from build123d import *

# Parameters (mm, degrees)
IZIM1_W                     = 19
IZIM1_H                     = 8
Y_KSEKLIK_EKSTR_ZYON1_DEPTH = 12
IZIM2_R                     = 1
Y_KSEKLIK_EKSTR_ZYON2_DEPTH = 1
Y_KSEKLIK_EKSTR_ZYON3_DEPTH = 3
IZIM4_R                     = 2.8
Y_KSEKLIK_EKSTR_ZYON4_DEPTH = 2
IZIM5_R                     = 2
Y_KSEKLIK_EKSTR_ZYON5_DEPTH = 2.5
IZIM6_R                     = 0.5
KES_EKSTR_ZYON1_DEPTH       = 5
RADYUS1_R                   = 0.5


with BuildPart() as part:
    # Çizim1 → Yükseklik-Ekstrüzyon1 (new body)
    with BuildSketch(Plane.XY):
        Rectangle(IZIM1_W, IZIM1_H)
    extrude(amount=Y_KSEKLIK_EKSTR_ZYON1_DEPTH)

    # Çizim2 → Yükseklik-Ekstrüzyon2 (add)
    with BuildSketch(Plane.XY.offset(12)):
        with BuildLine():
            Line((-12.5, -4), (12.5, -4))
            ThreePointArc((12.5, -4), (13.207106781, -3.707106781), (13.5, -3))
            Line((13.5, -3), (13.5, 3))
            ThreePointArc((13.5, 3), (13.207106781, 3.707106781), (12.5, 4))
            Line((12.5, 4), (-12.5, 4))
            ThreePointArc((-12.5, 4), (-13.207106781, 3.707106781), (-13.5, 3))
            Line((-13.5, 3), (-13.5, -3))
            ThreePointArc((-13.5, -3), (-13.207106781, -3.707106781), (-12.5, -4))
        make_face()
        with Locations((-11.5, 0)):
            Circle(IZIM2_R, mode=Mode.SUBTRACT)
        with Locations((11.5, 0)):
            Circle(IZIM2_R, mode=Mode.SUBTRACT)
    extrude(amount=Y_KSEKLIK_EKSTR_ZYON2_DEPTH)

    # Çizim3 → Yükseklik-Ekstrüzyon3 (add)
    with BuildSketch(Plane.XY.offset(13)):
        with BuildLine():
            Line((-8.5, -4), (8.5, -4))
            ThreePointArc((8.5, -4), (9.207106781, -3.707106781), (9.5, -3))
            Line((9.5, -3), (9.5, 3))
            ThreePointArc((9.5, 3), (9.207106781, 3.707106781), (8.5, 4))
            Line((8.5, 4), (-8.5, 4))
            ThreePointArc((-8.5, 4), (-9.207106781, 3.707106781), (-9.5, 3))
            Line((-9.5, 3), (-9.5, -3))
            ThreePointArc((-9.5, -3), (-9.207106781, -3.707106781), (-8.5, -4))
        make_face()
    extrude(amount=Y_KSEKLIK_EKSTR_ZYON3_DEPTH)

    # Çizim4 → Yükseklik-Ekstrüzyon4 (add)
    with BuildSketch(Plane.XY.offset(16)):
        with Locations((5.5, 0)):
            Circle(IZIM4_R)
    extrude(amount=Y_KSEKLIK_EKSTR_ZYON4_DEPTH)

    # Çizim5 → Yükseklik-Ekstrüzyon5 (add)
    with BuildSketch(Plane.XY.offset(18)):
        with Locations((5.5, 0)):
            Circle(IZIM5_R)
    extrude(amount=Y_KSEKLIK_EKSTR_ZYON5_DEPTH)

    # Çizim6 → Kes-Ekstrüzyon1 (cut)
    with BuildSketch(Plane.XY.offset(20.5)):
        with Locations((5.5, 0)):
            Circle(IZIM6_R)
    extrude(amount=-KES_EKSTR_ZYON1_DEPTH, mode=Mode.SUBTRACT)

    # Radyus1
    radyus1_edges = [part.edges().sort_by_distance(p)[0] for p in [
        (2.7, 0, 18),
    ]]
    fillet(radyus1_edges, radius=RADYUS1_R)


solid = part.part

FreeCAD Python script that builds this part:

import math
import FreeCAD as App
import Part
import Sketcher

V = App.Vector


def edges_at(feature, points):
    """Names of the edges that pass closest to the given points."""
    edges = feature.Shape.Edges
    near = lambda p: min(range(len(edges)), key=lambda i: edges[i].distToShape(Part.Vertex(*p))[0])
    return sorted({f"Edge{near(p) + 1}" for p in points})

doc = App.newDocument("Part")
body = doc.addObject("PartDesign::Body", "Body")

# Sketch on XY plane
sketch1 = doc.addObject("Sketcher::SketchObject", "Sketch")
body.addObject(sketch1)
sketch1.AttachmentSupport = (doc.XY_Plane, [""])
sketch1.MapMode = "FlatFace"
sketch1.addGeometry([
    Part.LineSegment(V(-10, 4, 0), V(-10, -4, 0)),
    Part.LineSegment(V(-10, -4, 0), V(10, -4, 0)),
    Part.LineSegment(V(10, -4, 0), V(10, 4, 0)),
    Part.LineSegment(V(10, 4, 0), V(-10, 4, 0)),
], False)
sketch1.addConstraint([
    Sketcher.Constraint("Coincident", 0, 2, 1, 1),
    Sketcher.Constraint("Coincident", 1, 2, 2, 1),
    Sketcher.Constraint("Coincident", 2, 2, 3, 1),
    Sketcher.Constraint("Coincident", 3, 2, 0, 1),
    Sketcher.Constraint("Vertical", 0),
    Sketcher.Constraint("Horizontal", 1),
    Sketcher.Constraint("Vertical", 2),
    Sketcher.Constraint("Horizontal", 3),
    Sketcher.Constraint("Symmetric", 0, 2, 2, 2, -1, 1),
    Sketcher.Constraint("DistanceX", 1, 1, 1, 2, 19.0),
    Sketcher.Constraint("DistanceY", 0, 2, 0, 1, 8.0),
])
pad1 = doc.addObject("PartDesign::Pad", "Pad")
body.addObject(pad1)
pad1.Profile = sketch1
pad1.Length = 12

# Sketch on XY plane
sketch2 = doc.addObject("Sketcher::SketchObject", "Sketch001")
body.addObject(sketch2)
sketch2.AttachmentSupport = (doc.XY_Plane, [""])
sketch2.MapMode = "FlatFace"
sketch2.AttachmentOffset = App.Placement(V(0, 0, 12), App.Rotation())
sketch2.addGeometry([
    Part.LineSegment(V(-12.5, -4, 0), V(12.5, -4, 0)),  # 0
    Part.ArcOfCircle(Part.Circle(V(12.5, -3, 0), V(0, 0, 1), 1), math.radians(-90), math.radians(0)),  # 1
    Part.LineSegment(V(13.5, -3, 0), V(13.5, 3, 0)),  # 2
    Part.ArcOfCircle(Part.Circle(V(12.5, 3, 0), V(0, 0, 1), 1), math.radians(0), math.radians(90)),  # 3
    Part.LineSegment(V(12.5, 4, 0), V(-12.5, 4, 0)),  # 4
    Part.ArcOfCircle(Part.Circle(V(-12.5, 3, 0), V(0, 0, 1), 1), math.radians(90), math.radians(180)),  # 5
    Part.LineSegment(V(-13.5, 3, 0), V(-13.5, -3, 0)),  # 6
    Part.ArcOfCircle(Part.Circle(V(-12.5, -3, 0), V(0, 0, 1), 1), math.radians(-180), math.radians(-90)),  # 7
    Part.Circle(V(-11.5, 0, 0), V(0, 0, 1), 1),  # 8
    Part.Circle(V(11.5, 0, 0), V(0, 0, 1), 1),  # 9
], False)
sketch2.addConstraint([
    Sketcher.Constraint("Tangent", 0, 2, 1, 1),
    Sketcher.Constraint("Tangent", 1, 2, 2, 1),
    Sketcher.Constraint("Tangent", 2, 2, 3, 1),
    Sketcher.Constraint("Tangent", 3, 2, 4, 1),
    Sketcher.Constraint("Tangent", 4, 2, 5, 1),
    Sketcher.Constraint("Tangent", 5, 2, 6, 1),
    Sketcher.Constraint("Tangent", 6, 2, 7, 1),
    Sketcher.Constraint("Tangent", 7, 2, 0, 1),
    Sketcher.Constraint("Horizontal", 0),
    Sketcher.Constraint("Vertical", 2),
    Sketcher.Constraint("Horizontal", 4),
    Sketcher.Constraint("Vertical", 6),
    Sketcher.Constraint("Equal", 1, 3),
    Sketcher.Constraint("Equal", 3, 5),
    Sketcher.Constraint("Equal", 5, 7),
    Sketcher.Constraint("Equal", 7, 8),
    Sketcher.Constraint("Equal", 8, 9),
    Sketcher.Constraint("Symmetric", 1, 3, 5, 3, -1, 1),
    Sketcher.Constraint("Symmetric", 8, 3, 9, 3, -1, 1),
    Sketcher.Constraint("PointOnObject", 8, 3, -1),
    Sketcher.Constraint("Diameter", 8, 2.0),
    Sketcher.Constraint("DistanceX", 0, 1, 0, 2, 25.0),
    Sketcher.Constraint("DistanceY", 2, 1, 2, 2, 6.0),
    Sketcher.Constraint("DistanceX", 5, 3, 8, 3, 1.0),
])
pad2 = doc.addObject("PartDesign::Pad", "Pad001")
body.addObject(pad2)
pad2.Profile = sketch2
pad2.Length = 1

# Sketch on XY plane
sketch3 = doc.addObject("Sketcher::SketchObject", "Sketch002")
body.addObject(sketch3)
sketch3.AttachmentSupport = (doc.XY_Plane, [""])
sketch3.MapMode = "FlatFace"
sketch3.AttachmentOffset = App.Placement(V(0, 0, 13), App.Rotation())
sketch3.addGeometry([
    Part.LineSegment(V(-8.5, -4, 0), V(8.5, -4, 0)),  # 0
    Part.ArcOfCircle(Part.Circle(V(8.5, -3, 0), V(0, 0, 1), 1), math.radians(-90), math.radians(0)),  # 1
    Part.LineSegment(V(9.5, -3, 0), V(9.5, 3, 0)),  # 2
    Part.ArcOfCircle(Part.Circle(V(8.5, 3, 0), V(0, 0, 1), 1), math.radians(0), math.radians(90)),  # 3
    Part.LineSegment(V(8.5, 4, 0), V(-8.5, 4, 0)),  # 4
    Part.ArcOfCircle(Part.Circle(V(-8.5, 3, 0), V(0, 0, 1), 1), math.radians(90), math.radians(180)),  # 5
    Part.LineSegment(V(-9.5, 3, 0), V(-9.5, -3, 0)),  # 6
    Part.ArcOfCircle(Part.Circle(V(-8.5, -3, 0), V(0, 0, 1), 1), math.radians(-180), math.radians(-90)),  # 7
], False)
sketch3.addConstraint([
    Sketcher.Constraint("Tangent", 0, 2, 1, 1),
    Sketcher.Constraint("Tangent", 1, 2, 2, 1),
    Sketcher.Constraint("Tangent", 2, 2, 3, 1),
    Sketcher.Constraint("Tangent", 3, 2, 4, 1),
    Sketcher.Constraint("Tangent", 4, 2, 5, 1),
    Sketcher.Constraint("Tangent", 5, 2, 6, 1),
    Sketcher.Constraint("Tangent", 6, 2, 7, 1),
    Sketcher.Constraint("Tangent", 7, 2, 0, 1),
    Sketcher.Constraint("Horizontal", 0),
    Sketcher.Constraint("Vertical", 2),
    Sketcher.Constraint("Horizontal", 4),
    Sketcher.Constraint("Vertical", 6),
    Sketcher.Constraint("Equal", 1, 3),
    Sketcher.Constraint("Equal", 3, 5),
    Sketcher.Constraint("Equal", 5, 7),
    Sketcher.Constraint("Symmetric", 1, 3, 5, 3, -1, 1),
    Sketcher.Constraint("Radius", 1, 1.0),
    Sketcher.Constraint("DistanceX", 0, 1, 0, 2, 17.0),
    Sketcher.Constraint("DistanceY", 2, 1, 2, 2, 6.0),
])
pad3 = doc.addObject("PartDesign::Pad", "Pad002")
body.addObject(pad3)
pad3.Profile = sketch3
pad3.Length = 3

# Sketch on XY plane
sketch4 = doc.addObject("Sketcher::SketchObject", "Sketch003")
body.addObject(sketch4)
sketch4.AttachmentSupport = (doc.XY_Plane, [""])
sketch4.MapMode = "FlatFace"
sketch4.AttachmentOffset = App.Placement(V(0, 0, 16), App.Rotation())
sketch4.addGeometry(Part.Circle(V(5.5, 0, 0), V(0, 0, 1), 2.8), False)
sketch4.addConstraint([
    Sketcher.Constraint("PointOnObject", 0, 3, -1),
    Sketcher.Constraint("Diameter", 0, 5.6),
    Sketcher.Constraint("DistanceX", -1, 1, 0, 3, 5.5),
])
pad4 = doc.addObject("PartDesign::Pad", "Pad003")
body.addObject(pad4)
pad4.Profile = sketch4
pad4.Length = 2

# Sketch on XY plane
sketch5 = doc.addObject("Sketcher::SketchObject", "Sketch004")
body.addObject(sketch5)
sketch5.AttachmentSupport = (doc.XY_Plane, [""])
sketch5.MapMode = "FlatFace"
sketch5.AttachmentOffset = App.Placement(V(0, 0, 18), App.Rotation())
sketch5.addGeometry(Part.Circle(V(5.5, 0, 0), V(0, 0, 1), 2), False)
sketch5.addConstraint([
    Sketcher.Constraint("PointOnObject", 0, 3, -1),
    Sketcher.Constraint("Diameter", 0, 4.0),
    Sketcher.Constraint("DistanceX", -1, 1, 0, 3, 5.5),
])
pad5 = doc.addObject("PartDesign::Pad", "Pad004")
body.addObject(pad5)
pad5.Profile = sketch5
pad5.Length = 2.5

# Sketch on XY plane
sketch6 = doc.addObject("Sketcher::SketchObject", "Sketch005")
body.addObject(sketch6)
sketch6.AttachmentSupport = (doc.XY_Plane, [""])
sketch6.MapMode = "FlatFace"
sketch6.AttachmentOffset = App.Placement(V(0, 0, 20.5), App.Rotation())
sketch6.addGeometry(Part.Circle(V(5.5, 0, 0), V(0, 0, 1), 0.5), False)
sketch6.addConstraint([
    Sketcher.Constraint("PointOnObject", 0, 3, -1),
    Sketcher.Constraint("Diameter", 0, 1.0),
    Sketcher.Constraint("DistanceX", -1, 1, 0, 3, 5.5),
])
pocket1 = doc.addObject("PartDesign::Pocket", "Pocket")
body.addObject(pocket1)
pocket1.Profile = sketch6
pocket1.Length = 5
doc.recompute()

fillet = doc.addObject("PartDesign::Fillet", "Fillet")
body.addObject(fillet)
fillet.Base = (pocket1, edges_at(pocket1, [(2.7, 0, 18)]))
fillet.Radius = 0.5

doc.recompute()
